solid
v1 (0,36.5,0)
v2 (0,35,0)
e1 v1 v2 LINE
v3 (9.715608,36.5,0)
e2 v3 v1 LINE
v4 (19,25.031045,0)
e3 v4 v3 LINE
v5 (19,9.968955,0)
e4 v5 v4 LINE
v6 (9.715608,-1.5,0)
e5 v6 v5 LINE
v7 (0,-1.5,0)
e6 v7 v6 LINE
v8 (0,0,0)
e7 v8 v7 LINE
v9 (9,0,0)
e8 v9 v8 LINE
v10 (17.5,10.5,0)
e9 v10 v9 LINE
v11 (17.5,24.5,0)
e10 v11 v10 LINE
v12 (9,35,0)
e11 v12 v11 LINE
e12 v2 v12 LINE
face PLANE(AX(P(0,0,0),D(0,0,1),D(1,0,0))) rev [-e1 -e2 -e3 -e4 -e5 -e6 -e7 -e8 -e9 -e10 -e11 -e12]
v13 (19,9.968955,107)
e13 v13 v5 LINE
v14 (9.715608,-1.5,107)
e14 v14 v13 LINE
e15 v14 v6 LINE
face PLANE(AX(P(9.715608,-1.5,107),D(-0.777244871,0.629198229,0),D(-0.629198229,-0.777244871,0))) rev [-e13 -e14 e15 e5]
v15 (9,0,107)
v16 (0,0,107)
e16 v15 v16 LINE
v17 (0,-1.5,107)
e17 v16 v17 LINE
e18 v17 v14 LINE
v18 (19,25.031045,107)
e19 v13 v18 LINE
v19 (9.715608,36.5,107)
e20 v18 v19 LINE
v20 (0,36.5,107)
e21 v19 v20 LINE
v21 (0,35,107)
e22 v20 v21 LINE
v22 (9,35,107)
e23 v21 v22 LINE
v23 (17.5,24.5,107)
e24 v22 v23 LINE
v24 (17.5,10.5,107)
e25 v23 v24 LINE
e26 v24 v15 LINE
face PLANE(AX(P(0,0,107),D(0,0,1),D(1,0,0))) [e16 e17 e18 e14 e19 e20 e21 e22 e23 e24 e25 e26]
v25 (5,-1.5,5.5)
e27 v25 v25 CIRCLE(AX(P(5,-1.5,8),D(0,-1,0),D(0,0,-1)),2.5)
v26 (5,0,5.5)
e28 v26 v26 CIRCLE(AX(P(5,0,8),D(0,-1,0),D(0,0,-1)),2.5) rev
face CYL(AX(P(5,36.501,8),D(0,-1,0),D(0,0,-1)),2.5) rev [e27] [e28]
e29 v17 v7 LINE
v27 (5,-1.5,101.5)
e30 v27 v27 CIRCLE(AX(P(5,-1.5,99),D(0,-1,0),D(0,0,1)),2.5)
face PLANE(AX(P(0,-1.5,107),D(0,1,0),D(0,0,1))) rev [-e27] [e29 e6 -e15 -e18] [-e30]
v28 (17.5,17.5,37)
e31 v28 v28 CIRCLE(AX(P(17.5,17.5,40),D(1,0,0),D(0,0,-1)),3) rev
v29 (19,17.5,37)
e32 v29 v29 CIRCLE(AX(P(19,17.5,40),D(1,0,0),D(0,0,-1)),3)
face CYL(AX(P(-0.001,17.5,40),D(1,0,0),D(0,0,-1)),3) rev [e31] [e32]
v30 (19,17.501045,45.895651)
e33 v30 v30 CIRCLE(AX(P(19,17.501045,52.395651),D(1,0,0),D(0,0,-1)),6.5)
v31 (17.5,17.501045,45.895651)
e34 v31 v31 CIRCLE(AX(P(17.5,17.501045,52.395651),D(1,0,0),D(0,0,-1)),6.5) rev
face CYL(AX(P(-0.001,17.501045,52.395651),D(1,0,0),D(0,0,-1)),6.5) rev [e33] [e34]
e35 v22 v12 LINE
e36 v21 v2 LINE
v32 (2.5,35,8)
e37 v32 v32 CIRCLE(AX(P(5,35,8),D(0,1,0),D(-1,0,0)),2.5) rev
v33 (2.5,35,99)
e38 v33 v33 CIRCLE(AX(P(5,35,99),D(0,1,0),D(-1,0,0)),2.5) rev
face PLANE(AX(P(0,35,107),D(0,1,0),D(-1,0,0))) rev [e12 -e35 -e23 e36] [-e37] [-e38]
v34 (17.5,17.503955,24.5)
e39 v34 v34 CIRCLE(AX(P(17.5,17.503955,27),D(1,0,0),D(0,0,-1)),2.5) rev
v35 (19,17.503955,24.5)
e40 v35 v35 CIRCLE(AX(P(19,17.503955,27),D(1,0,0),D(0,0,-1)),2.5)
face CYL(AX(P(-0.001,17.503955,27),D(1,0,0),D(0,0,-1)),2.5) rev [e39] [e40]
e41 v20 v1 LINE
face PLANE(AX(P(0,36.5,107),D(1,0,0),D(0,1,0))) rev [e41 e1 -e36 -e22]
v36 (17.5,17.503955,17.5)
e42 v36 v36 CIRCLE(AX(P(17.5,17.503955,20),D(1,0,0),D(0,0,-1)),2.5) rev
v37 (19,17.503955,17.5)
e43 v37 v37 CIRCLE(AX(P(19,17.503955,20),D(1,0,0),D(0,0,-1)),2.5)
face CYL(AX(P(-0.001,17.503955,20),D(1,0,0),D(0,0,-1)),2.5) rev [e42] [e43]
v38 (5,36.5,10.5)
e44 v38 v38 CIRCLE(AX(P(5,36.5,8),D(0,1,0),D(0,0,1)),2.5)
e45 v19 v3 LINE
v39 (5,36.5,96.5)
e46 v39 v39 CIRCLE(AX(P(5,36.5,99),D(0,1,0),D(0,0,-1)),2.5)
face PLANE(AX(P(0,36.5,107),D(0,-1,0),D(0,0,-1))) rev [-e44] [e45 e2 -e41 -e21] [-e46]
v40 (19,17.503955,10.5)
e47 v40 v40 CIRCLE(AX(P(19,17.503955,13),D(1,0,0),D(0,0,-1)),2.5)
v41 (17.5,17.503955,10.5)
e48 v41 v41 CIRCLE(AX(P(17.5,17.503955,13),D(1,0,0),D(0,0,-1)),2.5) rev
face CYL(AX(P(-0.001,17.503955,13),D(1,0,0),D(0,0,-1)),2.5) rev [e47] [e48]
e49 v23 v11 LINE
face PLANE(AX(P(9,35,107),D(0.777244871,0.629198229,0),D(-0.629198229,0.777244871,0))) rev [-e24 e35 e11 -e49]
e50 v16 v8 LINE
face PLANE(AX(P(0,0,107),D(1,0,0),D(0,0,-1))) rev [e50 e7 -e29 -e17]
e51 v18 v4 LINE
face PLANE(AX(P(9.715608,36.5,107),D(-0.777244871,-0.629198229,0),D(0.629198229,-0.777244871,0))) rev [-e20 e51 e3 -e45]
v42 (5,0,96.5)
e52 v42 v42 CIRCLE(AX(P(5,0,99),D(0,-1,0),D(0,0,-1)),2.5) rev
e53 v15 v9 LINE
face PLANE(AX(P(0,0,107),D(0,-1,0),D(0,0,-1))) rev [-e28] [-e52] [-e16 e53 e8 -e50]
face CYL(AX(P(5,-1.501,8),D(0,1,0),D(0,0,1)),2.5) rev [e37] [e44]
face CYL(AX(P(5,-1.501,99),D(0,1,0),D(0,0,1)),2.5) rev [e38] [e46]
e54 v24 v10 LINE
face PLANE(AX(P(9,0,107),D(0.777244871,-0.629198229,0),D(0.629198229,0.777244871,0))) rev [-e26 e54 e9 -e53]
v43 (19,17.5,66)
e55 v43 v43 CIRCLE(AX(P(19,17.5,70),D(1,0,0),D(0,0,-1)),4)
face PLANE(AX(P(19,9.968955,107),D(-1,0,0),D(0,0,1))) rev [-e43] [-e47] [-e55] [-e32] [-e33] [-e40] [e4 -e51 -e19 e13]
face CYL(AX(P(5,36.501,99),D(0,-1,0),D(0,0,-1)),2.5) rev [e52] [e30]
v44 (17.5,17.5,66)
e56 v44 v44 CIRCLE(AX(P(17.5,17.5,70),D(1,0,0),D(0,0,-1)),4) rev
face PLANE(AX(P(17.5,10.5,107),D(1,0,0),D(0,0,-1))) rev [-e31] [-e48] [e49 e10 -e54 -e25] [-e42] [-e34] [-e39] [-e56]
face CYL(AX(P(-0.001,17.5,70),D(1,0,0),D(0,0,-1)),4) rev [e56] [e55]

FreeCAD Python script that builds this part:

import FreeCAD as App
import Part
import Sketcher

V = App.Vector
Q = App.Units.Quantity

doc = App.newDocument("Part")
body = doc.addObject("PartDesign::Body", "Body")

sketch1 = body.newObject("Sketcher::SketchObject", "Sketch")
sketch1.AttachmentSupport = (doc.getObject("XY_Plane"), [""])
sketch1.MapMode = "FlatFace"
sketch1.addGeometry([
    Part.LineSegment(V(9, 0, 0), V(0, 0, 0)),
    Part.LineSegment(V(0, 0, 0), V(0, -1.5, 0)),
    Part.LineSegment(V(0, -1.5, 0), V(9.7, -1.5, 0)),
    Part.LineSegment(V(9.7, -1.5, 0), V(19, 10, 0)),
    Part.LineSegment(V(19, 10, 0), V(19, 25, 0)),
    Part.LineSegment(V(19, 25, 0), V(9.7, 36.5, 0)),
    Part.LineSegment(V(9.7, 36.5, 0), V(0, 36.5, 0)),
    Part.LineSegment(V(0, 36.5, 0), V(0, 35, 0)),
    Part.LineSegment(V(0, 35, 0), V(9, 35, 0)),
    Part.LineSegment(V(9, 35, 0), V(17.5, 24.5, 0)),
    Part.LineSegment(V(17.5, 24.5, 0), V(17.5, 10.5, 0)),
    Part.LineSegment(V(17.5, 10.5, 0), V(9, 0, 0)),
], False)
sketch1.addConstraint([
    Sketcher.Constraint("Coincident", 0, 2, 1, 1),
    Sketcher.Constraint("Coincident", 1, 2, 2, 1),
    Sketcher.Constraint("Coincident", 2, 2, 3, 1),
    Sketcher.Constraint("Coincident", 3, 2, 4, 1),
    Sketcher.Constraint("Coincident", 4, 2, 5, 1),
    Sketcher.Constraint("Coincident", 5, 2, 6, 1),
    Sketcher.Constraint("Coincident", 6, 2, 7, 1),
    Sketcher.Constraint("Coincident", 7, 2, 8, 1),
    Sketcher.Constraint("Coincident", 8, 2, 9, 1),
    Sketcher.Constraint("Coincident", 9, 2, 10, 1),
    Sketcher.Constraint("Coincident", 10, 2, 11, 1),
    Sketcher.Constraint("Coincident", 11, 2, 0, 1),
    Sketcher.Constraint("Horizontal", 0),
    Sketcher.Constraint("Vertical", 1),
    Sketcher.Constraint("Horizontal", 2),
    Sketcher.Constraint("Vertical", 4),
    Sketcher.Constraint("Horizontal", 6),
    Sketcher.Constraint("Vertical", 7),
    Sketcher.Constraint("Horizontal", 8),
    Sketcher.Constraint("Vertical", 10),
    Sketcher.Constraint("Coincident", 0, 2, -1, 1),
    Sketcher.Constraint("PointOnObject", 6, 2, -2),
    Sketcher.Constraint("Parallel", 5, 9),
    Sketcher.Constraint("Parallel", 3, 11),
    Sketcher.Constraint("Vertical", 2, 2, 5, 2),
    Sketcher.Constraint("Vertical", 8, 2, 11, 2),
    Sketcher.Constraint("Equal", 1, 7),
    Sketcher.Constraint("Equal", 3, 5),
    Sketcher.Constraint("DistanceX", 0, 2, 0, 1, Q("9 mm")),
    Sketcher.Constraint("DistanceY", 10, 2, 10, 1, Q("14 mm")),
    Sketcher.Constraint("DistanceY", 1, 2, 1, 1, Q("1.5 mm")),
    Sketcher.Constraint("DistanceX", -1, 1, 3, 2, Q("19 mm")),
    Sketcher.Constraint("DistanceY", -1, 1, 7, 2, Q("35 mm")),
    Sketcher.Constraint("DistanceX", -1, 1, 9, 2, Q("17.5 mm")),
    Sketcher.Constraint("DistanceX", 2, 1, 2, 2, Q("9.715608 mm")),
])
pad1 = body.newObject("PartDesign::Pad", "Pad")
pad1.Profile = sketch1
pad1.Length = 107

sketch2 = body.newObject("Sketcher::SketchObject", "Sketch001")
sketch2.AttachmentSupport = (doc.getObject("XZ_Plane"), [""])
sketch2.MapMode = "FlatFace"
sketch2.AttachmentOffset = App.Placement(V(0, 0, -36.5), App.Rotation())
sketch2.addGeometry(Part.Circle(V(5, 8, 0), V(0, 0, 1), 2.5), False)
sketch2.addConstraint([
    Sketcher.Constraint("Diameter", 0, Q("5 mm")),
    Sketcher.Constraint("DistanceX", -1, 1, 0, 3, Q("5 mm")),
    Sketcher.Constraint("DistanceY", -1, 1, 0, 3, Q("8 mm")),
])
pocket1 = body.newObject("PartDesign::Pocket", "Pocket")
pocket1.Profile = sketch2
pocket1.Type = "UpToFirst"
pocket1.Reversed = True

sketch3 = body.newObject("Sketcher::SketchObject", "Sketch002")
sketch3.AttachmentSupport = (doc.getObject("XZ_Plane"), [""])
sketch3.MapMode = "FlatFace"
sketch3.AttachmentOffset = App.Placement(V(0, 0, -36.5), App.Rotation())
sketch3.addGeometry(Part.Circle(V(5, 99, 0), V(0, 0, 1), 2.5), False)
sketch3.addConstraint([
    Sketcher.Constraint("Diameter", 0, Q("5 mm")),
    Sketcher.Constraint("DistanceX", -1, 1, 0, 3, Q("5 mm")),
    Sketcher.Constraint("DistanceY", -1, 1, 0, 3, Q("99 mm")),
])
pocket2 = body.newObject("PartDesign::Pocket", "Pocket001")
pocket2.Profile = sketch3
pocket2.Type = "UpToFirst"
pocket2.Reversed = True

sketch4 = body.newObject("Sketcher::SketchObject", "Sketch003")
sketch4.AttachmentSupport = (doc.getObject("XZ_Plane"), [""])
sketch4.MapMode = "FlatFace"
sketch4.AttachmentOffset = App.Placement(V(0, 0, 1.5), App.Rotation())
sketch4.addGeometry(Part.Circle(V(5, 8, 0), V(0, 0, 1), 2.5), False)
sketch4.addConstraint([
    Sketcher.Constraint("Diameter", 0, Q("5 mm")),
    Sketcher.Constraint("DistanceX", -1, 1, 0, 3, Q("5 mm")),
    Sketcher.Constraint("DistanceY", -1, 1, 0, 3, Q("8 mm")),
])
pocket3 = body.newObject("PartDesign::Pocket", "Pocket002")
pocket3.Profile = sketch4
pocket3.Type = "UpToFirst"

sketch5 = body.newObject("Sketcher::SketchObject", "Sketch004")
sketch5.AttachmentSupport = (doc.getObject("XZ_Plane"), [""])
sketch5.MapMode = "FlatFace"
sketch5.AttachmentOffset = App.Placement(V(0, 0, 1.5), App.Rotation())
sketch5.addGeometry(Part.Circle(V(5, 99, 0), V(0, 0, 1), 2.5), False)
sketch5.addConstraint([
    Sketcher.Constraint("Diameter", 0, Q("5 mm")),
    Sketcher.Constraint("DistanceX", -1, 1, 0, 3, Q("5 mm")),
    Sketcher.Constraint("DistanceY", -1, 1, 0, 3, Q("99 mm")),
])
pocket4 = body.newObject("PartDesign::Pocket", "Pocket003")
pocket4.Profile = sketch5
pocket4.Type = "UpToFirst"

sketch6 = body.newObject("Sketcher::SketchObject", "Sketch005")
sketch6.AttachmentSupport = (doc.getObject("YZ_Plane"), [""])
sketch6.MapMode = "FlatFace"
sketch6.AttachmentOffset = App.Placement(V(0, 0, 19), App.Rotation())
sketch6.addGeometry(Part.Circle(V(17.5, 40, 0), V(0, 0, 1), 3), False)
sketch6.addConstraint([
    Sketcher.Constraint("Diameter", 0, Q("6 mm")),
    Sketcher.Constraint("DistanceY", -1, 1, 0, 3, Q("40 mm")),
    Sketcher.Constraint("DistanceX", -1, 1, 0, 3, Q("17.5 mm")),
])
pocket5 = body.newObject("PartDesign::Pocket", "Pocket004")
pocket5.Profile = sketch6
pocket5.Type = "UpToFirst"

sketch7 = body.newObject("Sketcher::SketchObject", "Sketch006")
sketch7.AttachmentSupport = (doc.getObject("YZ_Plane"), [""])
sketch7.MapMode = "FlatFace"
sketch7.AttachmentOffset = App.Placement(V(0, 0, 19), App.Rotation())
sketch7.addGeometry(Part.Circle(V(17.5, 70, 0), V(0, 0, 1), 4), False)
sketch7.addConstraint([
    Sketcher.Constraint("Diameter", 0, Q("8 mm")),
    Sketcher.Constraint("DistanceY", -1, 1, 0, 3, Q("70 mm")),
    Sketcher.Constraint("DistanceX", -1, 1, 0, 3, Q("17.5 mm")),
])
pocket6 = body.newObject("PartDesign::Pocket", "Pocket005")
pocket6.Profile = sketch7
pocket6.Type = "UpToFirst"

sketch8 = body.newObject("Sketcher::SketchObject", "Sketch007")
sketch8.AttachmentSupport = (doc.getObject("YZ_Plane"), [""])
sketch8.MapMode = "FlatFace"
sketch8.AttachmentOffset = App.Placement(V(0, 0, 19), App.Rotation())
sketch8.addGeometry(Part.Circle(V(18, 52, 0), V(0, 0, 1), 6), False)
sketch8.addConstraint([
    Sketcher.Constraint("Diameter", 0, Q("13 mm")),
    Sketcher.Constraint("DistanceY", -1, 1, 0, 3, Q("52.395651 mm")),
    Sketcher.Constraint("DistanceX", -1, 1, 0, 3, Q("17.501045 mm")),
])
pocket7 = body.newObject("PartDesign::Pocket", "Pocket006")
pocket7.Profile = sketch8
pocket7.Type = "UpToFirst"

sketch9 = body.newObject("Sketcher::SketchObject", "Sketch008")
sketch9.AttachmentSupport = (doc.getObject("YZ_Plane"), [""])
sketch9.MapMode = "FlatFace"
sketch9.AttachmentOffset = App.Placement(V(0, 0, 19), App.Rotation())
sketch9.addGeometry(Part.Circle(V(17.5, 27, 0), V(0, 0, 1), 2.5), False)
sketch9.addConstraint([
    Sketcher.Constraint("Diameter", 0, Q("5 mm")),
    Sketcher.Constraint("DistanceY", -1, 1, 0, 3, Q("27 mm")),
    Sketcher.Constraint("DistanceX", -1, 1, 0, 3, Q("17.503955 mm")),
])
pocket8 = body.newObject("PartDesign::Pocket", "Pocket007")
pocket8.Profile = sketch9
pocket8.Type = "UpToFirst"

sketch10 = body.newObject("Sketcher::SketchObject", "Sketch009")
sketch10.AttachmentSupport = (doc.getObject("YZ_Plane"), [""])
sketch10.MapMode = "FlatFace"
sketch10.AttachmentOffset = App.Placement(V(0, 0, 19), App.Rotation())
sketch10.addGeometry(Part.Circle(V(17.5, 20, 0), V(0, 0, 1), 2.5), False)
sketch10.addConstraint([
    Sketcher.Constraint("Diameter", 0, Q("5 mm")),
    Sketcher.Constraint("DistanceY", -1, 1, 0, 3, Q("20 mm")),
    Sketcher.Constraint("DistanceX", -1, 1, 0, 3, Q("17.503955 mm")),
])
pocket9 = body.newObject("PartDesign::Pocket", "Pocket008")
pocket9.Profile = sketch10
pocket9.Type = "UpToFirst"

sketch11 = body.newObject("Sketcher::SketchObject", "Sketch010")
sketch11.AttachmentSupport = (doc.getObject("YZ_Plane"), [""])
sketch11.MapMode = "FlatFace"
sketch11.AttachmentOffset = App.Placement(V(0, 0, 19), App.Rotation())
sketch11.addGeometry(Part.Circle(V(17.5, 13, 0), V(0, 0, 1), 2.5), False)
sketch11.addConstraint([
    Sketcher.Constraint("Diameter", 0, Q("5 mm")),
    Sketcher.Constraint("DistanceY", -1, 1, 0, 3, Q("13 mm")),
    Sketcher.Constraint("DistanceX", -1, 1, 0, 3, Q("17.503955 mm")),
])
pocket10 = body.newObject("PartDesign::Pocket", "Pocket009")
pocket10.Profile = sketch11
pocket10.Type = "UpToFirst"

doc.recompute()
